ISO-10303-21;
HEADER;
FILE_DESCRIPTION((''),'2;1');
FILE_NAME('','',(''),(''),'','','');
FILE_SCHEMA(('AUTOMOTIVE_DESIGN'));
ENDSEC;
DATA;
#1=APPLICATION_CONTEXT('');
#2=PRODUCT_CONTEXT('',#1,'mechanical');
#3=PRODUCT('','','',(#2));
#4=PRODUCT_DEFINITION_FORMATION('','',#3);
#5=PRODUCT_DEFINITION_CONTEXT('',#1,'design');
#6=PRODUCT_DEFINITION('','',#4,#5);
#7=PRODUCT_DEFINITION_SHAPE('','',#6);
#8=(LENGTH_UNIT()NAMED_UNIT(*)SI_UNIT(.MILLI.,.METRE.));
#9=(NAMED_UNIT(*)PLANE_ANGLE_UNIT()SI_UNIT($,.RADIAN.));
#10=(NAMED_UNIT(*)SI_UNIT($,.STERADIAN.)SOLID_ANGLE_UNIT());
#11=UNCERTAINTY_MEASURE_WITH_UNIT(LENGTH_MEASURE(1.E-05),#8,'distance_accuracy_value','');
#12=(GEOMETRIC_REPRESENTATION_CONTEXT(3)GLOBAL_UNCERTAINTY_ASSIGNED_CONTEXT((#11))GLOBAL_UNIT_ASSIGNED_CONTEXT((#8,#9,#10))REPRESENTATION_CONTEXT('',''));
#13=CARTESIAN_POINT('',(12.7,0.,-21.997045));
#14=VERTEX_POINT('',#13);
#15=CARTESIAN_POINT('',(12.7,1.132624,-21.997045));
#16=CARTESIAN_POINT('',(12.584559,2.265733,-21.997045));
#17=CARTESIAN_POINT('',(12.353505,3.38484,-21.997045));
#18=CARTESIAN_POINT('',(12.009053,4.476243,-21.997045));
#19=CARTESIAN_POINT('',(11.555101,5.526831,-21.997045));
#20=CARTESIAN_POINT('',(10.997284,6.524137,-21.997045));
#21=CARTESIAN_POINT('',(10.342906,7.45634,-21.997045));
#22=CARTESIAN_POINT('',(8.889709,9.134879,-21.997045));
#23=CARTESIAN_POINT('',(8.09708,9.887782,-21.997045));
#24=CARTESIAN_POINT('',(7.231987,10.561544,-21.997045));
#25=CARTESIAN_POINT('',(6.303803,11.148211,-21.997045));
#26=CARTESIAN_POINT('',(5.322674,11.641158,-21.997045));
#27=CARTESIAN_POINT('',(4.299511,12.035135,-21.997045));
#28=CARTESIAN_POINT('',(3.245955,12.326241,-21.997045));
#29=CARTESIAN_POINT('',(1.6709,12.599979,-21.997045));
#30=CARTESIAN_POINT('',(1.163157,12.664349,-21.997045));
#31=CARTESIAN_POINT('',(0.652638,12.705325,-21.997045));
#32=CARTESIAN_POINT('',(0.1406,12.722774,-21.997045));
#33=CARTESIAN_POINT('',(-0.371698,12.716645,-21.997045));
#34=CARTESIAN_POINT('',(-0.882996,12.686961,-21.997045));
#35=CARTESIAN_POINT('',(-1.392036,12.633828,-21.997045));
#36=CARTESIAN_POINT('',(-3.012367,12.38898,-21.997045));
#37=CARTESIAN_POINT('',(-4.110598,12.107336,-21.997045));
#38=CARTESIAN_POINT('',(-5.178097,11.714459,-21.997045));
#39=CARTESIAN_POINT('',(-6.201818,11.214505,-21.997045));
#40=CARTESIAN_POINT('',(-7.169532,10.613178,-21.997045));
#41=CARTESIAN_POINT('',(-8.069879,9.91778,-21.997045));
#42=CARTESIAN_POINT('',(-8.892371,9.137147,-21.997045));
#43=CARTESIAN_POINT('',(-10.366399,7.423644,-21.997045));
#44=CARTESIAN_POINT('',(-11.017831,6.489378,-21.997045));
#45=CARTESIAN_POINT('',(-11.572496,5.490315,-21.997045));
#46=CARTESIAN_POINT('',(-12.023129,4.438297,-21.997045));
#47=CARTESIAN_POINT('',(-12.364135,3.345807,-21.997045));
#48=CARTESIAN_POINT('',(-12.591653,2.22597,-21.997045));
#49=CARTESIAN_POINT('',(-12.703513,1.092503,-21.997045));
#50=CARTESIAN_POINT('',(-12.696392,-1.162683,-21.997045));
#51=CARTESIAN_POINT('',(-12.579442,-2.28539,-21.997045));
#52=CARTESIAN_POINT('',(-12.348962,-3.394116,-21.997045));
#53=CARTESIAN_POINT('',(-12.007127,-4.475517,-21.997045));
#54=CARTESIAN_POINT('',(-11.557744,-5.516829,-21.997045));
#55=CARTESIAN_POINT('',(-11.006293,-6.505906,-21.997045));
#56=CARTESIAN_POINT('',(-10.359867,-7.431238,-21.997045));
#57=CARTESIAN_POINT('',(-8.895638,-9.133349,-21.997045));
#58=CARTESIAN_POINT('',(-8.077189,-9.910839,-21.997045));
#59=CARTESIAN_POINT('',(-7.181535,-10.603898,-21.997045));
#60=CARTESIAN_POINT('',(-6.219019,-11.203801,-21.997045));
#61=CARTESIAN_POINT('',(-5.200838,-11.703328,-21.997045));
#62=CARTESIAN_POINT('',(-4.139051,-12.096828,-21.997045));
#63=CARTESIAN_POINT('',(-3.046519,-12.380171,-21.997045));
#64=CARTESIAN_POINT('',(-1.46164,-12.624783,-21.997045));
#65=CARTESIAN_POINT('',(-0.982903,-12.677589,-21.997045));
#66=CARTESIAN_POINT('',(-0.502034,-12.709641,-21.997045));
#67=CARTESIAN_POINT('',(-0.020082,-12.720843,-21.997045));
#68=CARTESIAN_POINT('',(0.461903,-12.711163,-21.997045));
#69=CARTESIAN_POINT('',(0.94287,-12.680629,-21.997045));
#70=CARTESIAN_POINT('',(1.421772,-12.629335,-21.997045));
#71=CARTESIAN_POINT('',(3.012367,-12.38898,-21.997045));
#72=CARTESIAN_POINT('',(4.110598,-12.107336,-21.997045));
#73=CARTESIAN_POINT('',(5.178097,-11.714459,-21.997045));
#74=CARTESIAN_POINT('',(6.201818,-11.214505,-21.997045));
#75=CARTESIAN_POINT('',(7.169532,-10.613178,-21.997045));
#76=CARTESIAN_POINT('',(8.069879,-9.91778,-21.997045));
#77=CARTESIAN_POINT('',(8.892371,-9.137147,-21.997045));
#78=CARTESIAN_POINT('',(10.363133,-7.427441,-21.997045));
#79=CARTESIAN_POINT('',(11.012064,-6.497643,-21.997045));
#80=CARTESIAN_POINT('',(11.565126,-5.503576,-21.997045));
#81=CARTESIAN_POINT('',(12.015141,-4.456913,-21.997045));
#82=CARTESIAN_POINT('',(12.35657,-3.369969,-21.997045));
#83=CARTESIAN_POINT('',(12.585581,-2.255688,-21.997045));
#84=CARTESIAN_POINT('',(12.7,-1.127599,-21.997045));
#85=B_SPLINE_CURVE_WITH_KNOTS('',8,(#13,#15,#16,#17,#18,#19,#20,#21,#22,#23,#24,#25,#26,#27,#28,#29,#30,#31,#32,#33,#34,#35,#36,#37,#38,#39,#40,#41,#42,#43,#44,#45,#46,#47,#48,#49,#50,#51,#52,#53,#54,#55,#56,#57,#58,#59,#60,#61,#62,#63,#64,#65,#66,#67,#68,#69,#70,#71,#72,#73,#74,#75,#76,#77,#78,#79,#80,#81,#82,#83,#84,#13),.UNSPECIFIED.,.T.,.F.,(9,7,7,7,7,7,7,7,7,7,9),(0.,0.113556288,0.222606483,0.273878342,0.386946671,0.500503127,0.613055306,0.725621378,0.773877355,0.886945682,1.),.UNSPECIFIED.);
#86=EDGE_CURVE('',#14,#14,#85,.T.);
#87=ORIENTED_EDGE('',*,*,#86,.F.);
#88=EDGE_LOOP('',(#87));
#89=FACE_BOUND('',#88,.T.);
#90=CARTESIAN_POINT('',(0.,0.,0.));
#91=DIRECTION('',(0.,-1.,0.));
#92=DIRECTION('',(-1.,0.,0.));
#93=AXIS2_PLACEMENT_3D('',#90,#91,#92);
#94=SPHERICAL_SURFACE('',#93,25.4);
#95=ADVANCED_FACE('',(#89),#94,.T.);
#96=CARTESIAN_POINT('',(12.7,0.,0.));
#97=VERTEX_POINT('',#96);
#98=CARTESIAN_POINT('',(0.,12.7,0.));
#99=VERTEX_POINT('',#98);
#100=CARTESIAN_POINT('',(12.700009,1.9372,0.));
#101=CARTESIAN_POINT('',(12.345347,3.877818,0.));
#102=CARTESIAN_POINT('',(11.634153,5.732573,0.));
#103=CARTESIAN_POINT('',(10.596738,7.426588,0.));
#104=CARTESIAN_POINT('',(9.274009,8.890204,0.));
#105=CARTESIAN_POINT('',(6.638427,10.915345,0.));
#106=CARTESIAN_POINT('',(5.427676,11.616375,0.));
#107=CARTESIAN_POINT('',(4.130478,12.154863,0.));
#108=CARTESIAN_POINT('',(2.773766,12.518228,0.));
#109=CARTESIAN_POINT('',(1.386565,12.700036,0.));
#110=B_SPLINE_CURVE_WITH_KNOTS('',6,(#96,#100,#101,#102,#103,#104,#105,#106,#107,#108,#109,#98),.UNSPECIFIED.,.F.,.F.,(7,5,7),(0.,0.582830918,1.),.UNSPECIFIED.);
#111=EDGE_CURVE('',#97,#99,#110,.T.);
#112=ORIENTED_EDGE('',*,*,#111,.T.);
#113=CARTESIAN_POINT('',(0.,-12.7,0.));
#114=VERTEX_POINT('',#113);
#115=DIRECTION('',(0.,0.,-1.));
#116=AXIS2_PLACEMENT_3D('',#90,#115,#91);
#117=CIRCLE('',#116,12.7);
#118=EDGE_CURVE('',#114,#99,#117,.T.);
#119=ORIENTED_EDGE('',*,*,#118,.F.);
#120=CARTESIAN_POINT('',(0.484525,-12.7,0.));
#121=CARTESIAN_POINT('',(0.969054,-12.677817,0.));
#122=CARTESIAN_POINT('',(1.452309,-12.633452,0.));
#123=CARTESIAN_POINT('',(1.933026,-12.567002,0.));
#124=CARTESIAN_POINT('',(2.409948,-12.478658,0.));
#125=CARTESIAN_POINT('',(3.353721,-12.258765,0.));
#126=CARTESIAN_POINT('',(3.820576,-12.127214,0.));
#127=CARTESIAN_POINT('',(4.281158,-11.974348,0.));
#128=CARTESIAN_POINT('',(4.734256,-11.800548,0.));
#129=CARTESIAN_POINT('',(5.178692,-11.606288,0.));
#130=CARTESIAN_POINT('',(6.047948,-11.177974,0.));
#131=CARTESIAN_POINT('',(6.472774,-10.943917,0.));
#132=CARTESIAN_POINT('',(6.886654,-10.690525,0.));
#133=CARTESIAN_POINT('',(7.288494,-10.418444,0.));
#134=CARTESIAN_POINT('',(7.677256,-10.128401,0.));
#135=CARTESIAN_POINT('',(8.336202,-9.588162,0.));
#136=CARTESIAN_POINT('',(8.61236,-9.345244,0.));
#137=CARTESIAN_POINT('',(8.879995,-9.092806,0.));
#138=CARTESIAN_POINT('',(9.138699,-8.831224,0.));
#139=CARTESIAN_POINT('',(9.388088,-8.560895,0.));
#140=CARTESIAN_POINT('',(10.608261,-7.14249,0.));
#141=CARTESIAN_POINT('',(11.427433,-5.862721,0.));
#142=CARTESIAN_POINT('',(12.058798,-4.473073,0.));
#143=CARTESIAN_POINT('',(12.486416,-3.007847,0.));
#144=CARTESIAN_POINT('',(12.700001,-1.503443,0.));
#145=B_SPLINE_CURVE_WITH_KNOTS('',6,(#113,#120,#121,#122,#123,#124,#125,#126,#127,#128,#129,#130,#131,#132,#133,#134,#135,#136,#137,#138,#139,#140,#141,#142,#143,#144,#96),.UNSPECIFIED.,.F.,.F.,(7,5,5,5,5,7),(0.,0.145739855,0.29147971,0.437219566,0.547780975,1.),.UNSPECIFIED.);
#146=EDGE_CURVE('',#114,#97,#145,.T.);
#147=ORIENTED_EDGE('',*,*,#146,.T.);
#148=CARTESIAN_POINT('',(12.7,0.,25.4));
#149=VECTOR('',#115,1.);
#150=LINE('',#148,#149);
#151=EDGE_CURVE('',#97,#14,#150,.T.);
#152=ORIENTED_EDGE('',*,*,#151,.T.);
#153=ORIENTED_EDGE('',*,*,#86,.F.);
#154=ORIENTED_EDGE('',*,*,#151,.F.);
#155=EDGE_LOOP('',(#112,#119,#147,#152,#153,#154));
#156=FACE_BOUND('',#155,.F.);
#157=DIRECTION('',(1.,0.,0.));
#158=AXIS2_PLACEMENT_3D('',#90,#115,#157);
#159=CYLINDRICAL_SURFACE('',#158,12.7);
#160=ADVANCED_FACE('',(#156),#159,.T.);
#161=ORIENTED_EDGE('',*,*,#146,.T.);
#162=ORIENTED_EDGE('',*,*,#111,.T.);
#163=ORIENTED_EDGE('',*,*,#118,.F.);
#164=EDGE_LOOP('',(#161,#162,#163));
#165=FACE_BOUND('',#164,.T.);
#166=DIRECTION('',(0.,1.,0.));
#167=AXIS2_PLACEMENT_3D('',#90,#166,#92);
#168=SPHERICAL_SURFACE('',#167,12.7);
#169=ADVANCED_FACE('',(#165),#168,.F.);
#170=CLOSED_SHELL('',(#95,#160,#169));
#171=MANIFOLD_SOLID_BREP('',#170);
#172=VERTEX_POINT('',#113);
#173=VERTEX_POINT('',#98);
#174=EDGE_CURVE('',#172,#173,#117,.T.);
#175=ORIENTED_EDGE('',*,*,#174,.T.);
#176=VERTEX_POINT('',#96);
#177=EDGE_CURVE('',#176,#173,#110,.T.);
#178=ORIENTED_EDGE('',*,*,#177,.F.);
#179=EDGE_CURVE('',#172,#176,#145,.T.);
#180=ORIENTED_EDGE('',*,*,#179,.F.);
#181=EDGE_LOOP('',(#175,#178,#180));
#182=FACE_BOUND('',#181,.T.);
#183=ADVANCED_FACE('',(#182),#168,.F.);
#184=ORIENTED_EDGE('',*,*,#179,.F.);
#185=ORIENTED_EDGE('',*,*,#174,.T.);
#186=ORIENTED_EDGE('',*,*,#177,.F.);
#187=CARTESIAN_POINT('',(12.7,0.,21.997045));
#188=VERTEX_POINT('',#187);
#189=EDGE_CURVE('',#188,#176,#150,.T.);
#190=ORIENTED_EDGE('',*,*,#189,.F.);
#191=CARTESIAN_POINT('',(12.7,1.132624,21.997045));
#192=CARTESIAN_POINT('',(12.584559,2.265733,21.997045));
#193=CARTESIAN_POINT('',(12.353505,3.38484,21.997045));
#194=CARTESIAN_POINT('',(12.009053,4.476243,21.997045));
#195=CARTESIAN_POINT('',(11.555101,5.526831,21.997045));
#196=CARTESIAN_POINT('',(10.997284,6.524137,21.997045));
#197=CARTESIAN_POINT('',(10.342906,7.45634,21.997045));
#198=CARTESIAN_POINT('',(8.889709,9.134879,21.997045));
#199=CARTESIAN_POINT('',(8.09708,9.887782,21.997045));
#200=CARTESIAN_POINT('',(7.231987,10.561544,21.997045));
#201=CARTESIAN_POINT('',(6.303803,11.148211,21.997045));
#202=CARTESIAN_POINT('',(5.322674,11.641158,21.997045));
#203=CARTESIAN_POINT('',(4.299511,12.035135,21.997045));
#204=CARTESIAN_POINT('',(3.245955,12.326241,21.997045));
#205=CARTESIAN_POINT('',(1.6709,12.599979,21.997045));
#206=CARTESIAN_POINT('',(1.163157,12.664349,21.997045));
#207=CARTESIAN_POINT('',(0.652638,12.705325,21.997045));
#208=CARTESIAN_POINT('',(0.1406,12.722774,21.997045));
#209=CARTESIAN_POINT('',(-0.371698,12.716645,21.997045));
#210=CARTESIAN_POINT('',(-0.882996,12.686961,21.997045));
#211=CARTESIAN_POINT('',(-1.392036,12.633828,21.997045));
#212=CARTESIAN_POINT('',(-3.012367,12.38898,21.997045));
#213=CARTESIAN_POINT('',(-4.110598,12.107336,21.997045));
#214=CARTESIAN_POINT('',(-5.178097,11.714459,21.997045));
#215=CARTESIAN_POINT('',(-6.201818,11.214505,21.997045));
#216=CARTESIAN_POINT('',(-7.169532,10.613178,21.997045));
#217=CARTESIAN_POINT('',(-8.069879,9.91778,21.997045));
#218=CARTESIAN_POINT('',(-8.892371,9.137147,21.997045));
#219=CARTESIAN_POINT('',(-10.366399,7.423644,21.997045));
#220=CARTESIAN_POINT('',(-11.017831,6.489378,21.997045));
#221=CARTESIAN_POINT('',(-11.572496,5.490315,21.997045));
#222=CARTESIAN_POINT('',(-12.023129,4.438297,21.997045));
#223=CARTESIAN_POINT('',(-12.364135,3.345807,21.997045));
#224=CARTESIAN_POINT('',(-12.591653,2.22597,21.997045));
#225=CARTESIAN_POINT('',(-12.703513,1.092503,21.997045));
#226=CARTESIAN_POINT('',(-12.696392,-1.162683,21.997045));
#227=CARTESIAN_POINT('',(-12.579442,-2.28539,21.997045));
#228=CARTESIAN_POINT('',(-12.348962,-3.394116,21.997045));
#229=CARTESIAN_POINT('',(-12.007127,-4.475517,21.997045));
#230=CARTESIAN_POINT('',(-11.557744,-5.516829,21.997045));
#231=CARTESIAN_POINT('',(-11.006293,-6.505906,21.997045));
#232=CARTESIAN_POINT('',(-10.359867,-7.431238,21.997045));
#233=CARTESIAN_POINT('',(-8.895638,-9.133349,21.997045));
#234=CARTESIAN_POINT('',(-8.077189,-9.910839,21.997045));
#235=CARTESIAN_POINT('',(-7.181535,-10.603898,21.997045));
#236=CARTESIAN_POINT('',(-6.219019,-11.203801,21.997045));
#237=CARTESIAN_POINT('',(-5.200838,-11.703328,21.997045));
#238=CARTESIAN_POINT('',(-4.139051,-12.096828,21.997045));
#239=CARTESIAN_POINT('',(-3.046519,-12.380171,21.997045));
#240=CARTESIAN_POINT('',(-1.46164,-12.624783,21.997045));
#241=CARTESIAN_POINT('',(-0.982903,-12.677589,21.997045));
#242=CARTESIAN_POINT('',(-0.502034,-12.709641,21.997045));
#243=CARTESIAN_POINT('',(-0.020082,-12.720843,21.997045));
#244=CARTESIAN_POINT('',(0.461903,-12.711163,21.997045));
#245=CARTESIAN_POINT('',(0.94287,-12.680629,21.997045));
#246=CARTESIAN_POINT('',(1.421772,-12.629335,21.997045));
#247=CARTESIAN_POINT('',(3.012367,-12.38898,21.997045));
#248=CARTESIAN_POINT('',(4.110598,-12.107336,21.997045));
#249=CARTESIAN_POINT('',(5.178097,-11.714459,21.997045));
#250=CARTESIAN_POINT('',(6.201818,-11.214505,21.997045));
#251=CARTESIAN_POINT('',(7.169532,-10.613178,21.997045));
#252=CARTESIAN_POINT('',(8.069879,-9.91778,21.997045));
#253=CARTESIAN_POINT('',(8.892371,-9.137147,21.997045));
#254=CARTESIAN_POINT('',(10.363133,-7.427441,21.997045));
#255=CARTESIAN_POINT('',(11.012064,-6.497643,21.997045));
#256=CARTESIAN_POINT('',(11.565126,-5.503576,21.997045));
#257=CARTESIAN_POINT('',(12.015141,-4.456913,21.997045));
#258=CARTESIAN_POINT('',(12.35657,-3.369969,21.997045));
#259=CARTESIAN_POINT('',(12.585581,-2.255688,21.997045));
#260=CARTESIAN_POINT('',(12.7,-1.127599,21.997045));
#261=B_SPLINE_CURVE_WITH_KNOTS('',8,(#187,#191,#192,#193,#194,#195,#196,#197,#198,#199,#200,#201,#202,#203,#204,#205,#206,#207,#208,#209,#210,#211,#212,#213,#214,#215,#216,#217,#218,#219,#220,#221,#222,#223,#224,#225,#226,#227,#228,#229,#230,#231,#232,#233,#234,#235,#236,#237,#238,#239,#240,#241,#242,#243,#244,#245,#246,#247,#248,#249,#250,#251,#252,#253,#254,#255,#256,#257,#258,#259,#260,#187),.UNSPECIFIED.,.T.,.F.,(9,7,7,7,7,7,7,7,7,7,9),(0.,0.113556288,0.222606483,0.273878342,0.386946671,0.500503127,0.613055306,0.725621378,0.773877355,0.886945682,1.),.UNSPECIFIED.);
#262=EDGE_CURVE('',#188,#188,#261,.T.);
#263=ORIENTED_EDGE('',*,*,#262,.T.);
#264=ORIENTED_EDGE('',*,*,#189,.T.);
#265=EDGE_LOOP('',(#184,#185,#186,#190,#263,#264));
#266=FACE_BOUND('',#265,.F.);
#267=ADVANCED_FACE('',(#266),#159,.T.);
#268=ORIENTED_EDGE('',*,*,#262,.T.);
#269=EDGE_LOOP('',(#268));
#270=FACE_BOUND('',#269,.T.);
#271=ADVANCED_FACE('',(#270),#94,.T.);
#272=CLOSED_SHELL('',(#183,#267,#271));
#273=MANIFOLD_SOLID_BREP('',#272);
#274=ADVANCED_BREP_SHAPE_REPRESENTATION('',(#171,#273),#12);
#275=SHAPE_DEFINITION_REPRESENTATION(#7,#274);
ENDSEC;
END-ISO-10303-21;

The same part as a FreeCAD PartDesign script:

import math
import FreeCAD as App
import Part
import Sketcher

V = App.Vector
Q = App.Units.Quantity

doc = App.newDocument("Part")
body = doc.addObject("PartDesign::Body", "Body")
body.AllowCompound = True

# Sketch on XY plane
sketch1 = doc.addObject("Sketcher::SketchObject", "Sketch")
body.addObject(sketch1)
sketch1.AttachmentSupport = (doc.XY_Plane, [""])
sketch1.MapMode = "FlatFace"
sketch1.addGeometry([
    Part.ArcOfCircle(Part.Circle(V(0, 0, 0), V(0, 0, 1), 13), math.radians(90), math.radians(270)),
    Part.LineSegment(V(0, 13, 0), V(0, 25, 0)),
    Part.ArcOfCircle(Part.Circle(V(0, 0, 0), V(0, 0, 1), 25), math.radians(90), math.radians(270)),
    Part.LineSegment(V(0, -25, 0), V(0, -13, 0)),
], False)
sketch1.addConstraint([
    Sketcher.Constraint("Coincident", 0, 1, 1, 1),
    Sketcher.Constraint("Coincident", 1, 2, 2, 1),
    Sketcher.Constraint("Coincident", 2, 2, 3, 1),
    Sketcher.Constraint("Coincident", 3, 2, 0, 2),
    Sketcher.Constraint("Vertical", 1),
    Sketcher.Constraint("Vertical", 3),
    Sketcher.Constraint("Coincident", 0, 3, -1, 1),
    Sketcher.Constraint("Coincident", 2, 3, -1, 1),
    Sketcher.Constraint("PointOnObject", 0, 1, -2),
    Sketcher.Constraint("PointOnObject", 2, 2, -2),
    Sketcher.Constraint("Radius", 2, Q("1 in")),
    Sketcher.Constraint("Radius", 0, Q("0.5 in")),
])
revolution = doc.addObject("PartDesign::Revolution", "Revolution")
body.addObject(revolution)
revolution.Profile = sketch1
revolution.ReferenceAxis = (sketch1, ["V_Axis"])
revolution.Angle = 360

# Sketch on XY plane
sketch2 = doc.addObject("Sketcher::SketchObject", "Sketch001")
body.addObject(sketch2)
sketch2.AttachmentSupport = (doc.XY_Plane, [""])
sketch2.MapMode = "FlatFace"
sketch2.addGeometry([
    Part.Circle(V(0, 0, 0), V(0, 0, 1), 25),
    Part.Circle(V(0, 0, 0), V(0, 0, 1), 13),
], False)
sketch2.addConstraint([
    Sketcher.Constraint("Coincident", 0, 3, -1, 1),
    Sketcher.Constraint("Coincident", 1, 3, -1, 1),
    Sketcher.Constraint("Diameter", 0, Q("2 in")),
    Sketcher.Constraint("Diameter", 1, Q("1 in")),
])
pocket1 = doc.addObject("PartDesign::Pocket", "Pocket")
body.addObject(pocket1)
pocket1.Profile = sketch2
pocket1.Length = Q("2 in")
pocket1.Midplane = True

doc.recompute()
